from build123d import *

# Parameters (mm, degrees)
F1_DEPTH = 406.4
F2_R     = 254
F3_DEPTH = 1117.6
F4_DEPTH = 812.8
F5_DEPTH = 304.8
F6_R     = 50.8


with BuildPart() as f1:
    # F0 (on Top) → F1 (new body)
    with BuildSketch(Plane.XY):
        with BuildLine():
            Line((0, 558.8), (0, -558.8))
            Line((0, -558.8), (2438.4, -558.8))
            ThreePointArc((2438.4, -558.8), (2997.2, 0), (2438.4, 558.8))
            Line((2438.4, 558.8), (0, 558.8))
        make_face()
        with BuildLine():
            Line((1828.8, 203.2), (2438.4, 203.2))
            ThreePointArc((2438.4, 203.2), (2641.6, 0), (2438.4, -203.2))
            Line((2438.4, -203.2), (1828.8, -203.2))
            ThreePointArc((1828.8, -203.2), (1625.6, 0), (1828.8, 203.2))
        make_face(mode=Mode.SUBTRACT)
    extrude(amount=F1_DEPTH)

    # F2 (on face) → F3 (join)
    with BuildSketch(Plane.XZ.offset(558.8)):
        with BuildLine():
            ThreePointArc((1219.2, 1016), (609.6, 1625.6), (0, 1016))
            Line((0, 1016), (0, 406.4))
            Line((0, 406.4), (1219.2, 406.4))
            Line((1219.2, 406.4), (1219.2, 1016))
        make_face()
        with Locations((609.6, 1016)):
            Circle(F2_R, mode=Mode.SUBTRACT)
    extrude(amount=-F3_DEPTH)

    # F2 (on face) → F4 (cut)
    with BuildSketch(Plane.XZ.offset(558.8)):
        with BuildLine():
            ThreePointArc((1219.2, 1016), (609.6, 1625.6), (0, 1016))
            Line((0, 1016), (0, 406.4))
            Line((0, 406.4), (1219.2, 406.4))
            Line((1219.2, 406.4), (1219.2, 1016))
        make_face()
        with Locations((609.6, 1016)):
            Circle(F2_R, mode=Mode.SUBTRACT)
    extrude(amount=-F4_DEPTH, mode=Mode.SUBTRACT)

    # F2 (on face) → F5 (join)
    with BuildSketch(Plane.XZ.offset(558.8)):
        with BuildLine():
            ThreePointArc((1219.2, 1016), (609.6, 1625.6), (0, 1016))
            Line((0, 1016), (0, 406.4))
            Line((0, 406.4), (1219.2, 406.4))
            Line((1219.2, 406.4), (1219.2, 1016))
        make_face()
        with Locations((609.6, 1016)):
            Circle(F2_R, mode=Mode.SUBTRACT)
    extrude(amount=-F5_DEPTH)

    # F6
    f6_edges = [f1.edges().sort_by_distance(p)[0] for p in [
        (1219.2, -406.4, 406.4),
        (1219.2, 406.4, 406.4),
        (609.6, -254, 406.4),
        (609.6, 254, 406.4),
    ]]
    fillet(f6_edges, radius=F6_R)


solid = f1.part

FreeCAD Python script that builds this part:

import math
import FreeCAD as App
import Part
import Sketcher
Q = App.Units.Quantity


def edges_at(feature, points):
    """Names of the edges that pass closest to the given points."""
    edges = feature.Shape.Edges
    near = lambda p: min(range(len(edges)), key=lambda i: edges[i].distToShape(Part.Vertex(*p))[0])
    return sorted({f"Edge{near(p) + 1}" for p in points})

doc = App.newDocument("Part")
params = doc.addObject("Spreadsheet::Sheet", "Params")
for row, (alias, value) in enumerate([
    ("sketch1_radius", "22 in"),
    ("sketch1_radius2", "8 in"),
    ("sketch1_width", "96 in"),
    ("sketch1_width2", "24 in"),
    ("pad1_length", "16 in"),
    ("sketch2_diameter", "20 in"),
    ("sketch2_radius", "24 in"),
    ("sketch2_height", "24 in"),
    ("pad2_length", "44 in"),
    ("sketch3_diameter", "20 in"),
    ("sketch3_radius", "24 in"),
    ("sketch3_height", "24 in"),
    ("pocket1_length", "32 in"),
    ("sketch4_diameter", "20 in"),
    ("sketch4_radius", "24 in"),
    ("sketch4_height", "24 in"),
    ("pad3_length", "12 in"),
    ("fillet_radius", "2 in"),
], start=1):
    params.set(f"A{row}", alias)
    params.set(f"B{row}", "=" + value)
    params.setAlias(f"B{row}", alias)

body = doc.addObject("PartDesign::Body", "Body")

# Sketch on XY plane
sketch1 = doc.addObject("Sketcher::SketchObject", "Sketch")
body.addObject(sketch1)
sketch1.AttachmentSupport = (doc.XY_Plane, [""])
sketch1.MapMode = "FlatFace"
sketch1.addGeometry([
    Part.LineSegment(App.Vector(0, 558.8, 0), App.Vector(0, -558.8, 0)),  # 0
    Part.LineSegment(App.Vector(0, -558.8, 0), App.Vector(2438.4, -558.8, 0)),  # 1
    Part.ArcOfCircle(Part.Circle(App.Vector(2438.4, 0, 0), App.Vector(0, 0, 1), 558.8), math.radians(-90), math.radians(90)),  # 2
    Part.LineSegment(App.Vector(2438.4, 558.8, 0), App.Vector(0, 558.8, 0)),  # 3
    Part.ArcOfCircle(Part.Circle(App.Vector(1828.8, 0, 0), App.Vector(0, 0, 1), 203.2), math.radians(90), math.radians(270)),  # 4
    Part.LineSegment(App.Vector(1828.8, 203.2, 0), App.Vector(2438.4, 203.2, 0)),  # 5
    Part.ArcOfCircle(Part.Circle(App.Vector(2438.4, 0, 0), App.Vector(0, 0, 1), 203.2), math.radians(-90), math.radians(90)),  # 6
    Part.LineSegment(App.Vector(2438.4, -203.2, 0), App.Vector(1828.8, -203.2, 0)),  # 7
], False)
sketch1.addConstraint([
    Sketcher.Constraint("Coincident", 0, 2, 1, 1),
    Sketcher.Constraint("Tangent", 1, 2, 2, 1),
    Sketcher.Constraint("Tangent", 2, 2, 3, 1),
    Sketcher.Constraint("Coincident", 3, 2, 0, 1),
    Sketcher.Constraint("Tangent", 4, 1, 5, 1),
    Sketcher.Constraint("Tangent", 5, 2, 6, 2),
    Sketcher.Constraint("Tangent", 6, 1, 7, 1),
    Sketcher.Constraint("Tangent", 7, 2, 4, 2),
    Sketcher.Constraint("Vertical", 0),
    Sketcher.Constraint("Horizontal", 1),
    Sketcher.Constraint("Horizontal", 3),
    Sketcher.Constraint("Horizontal", 5),
    Sketcher.Constraint("Horizontal", 7),
    Sketcher.Constraint("Coincident", 6, 3, 2, 3),
    Sketcher.Constraint("Symmetric", 0, 2, 3, 2, -1, 1),
    Sketcher.Constraint("Radius", 2, Q("22 in")),
    Sketcher.Constraint("Radius", 4, Q("8 in")),
    Sketcher.Constraint("DistanceX", 1, 1, 1, 2, Q("96 in")),
    Sketcher.Constraint("DistanceX", 5, 1, 5, 2, Q("24 in")),
])
sketch1.setExpression("Constraints[15]", "Params.sketch1_radius")
sketch1.setExpression("Constraints[16]", "Params.sketch1_radius2")
sketch1.setExpression("Constraints[17]", "Params.sketch1_width")
sketch1.setExpression("Constraints[18]", "Params.sketch1_width2")
pad1 = doc.addObject("PartDesign::Pad", "Pad")
body.addObject(pad1)
pad1.Profile = sketch1
pad1.setExpression("Length", "Params.pad1_length")

# Sketch on XZ plane
sketch2 = doc.addObject("Sketcher::SketchObject", "Sketch001")
body.addObject(sketch2)
sketch2.AttachmentSupport = (doc.XZ_Plane, [""])
sketch2.MapMode = "FlatFace"
sketch2.AttachmentOffset = App.Placement(App.Vector(0, 0, 22 * 25.4), App.Rotation())
sketch2.addGeometry([
    Part.ArcOfCircle(Part.Circle(App.Vector(609.6, 1016, 0), App.Vector(0, 0, 1), 609.6), math.radians(0), math.radians(180)),  # 0
    Part.LineSegment(App.Vector(0, 1016, 0), App.Vector(0, 406.4, 0)),  # 1
    Part.LineSegment(App.Vector(0, 406.4, 0), App.Vector(1219.2, 406.4, 0)),  # 2
    Part.LineSegment(App.Vector(1219.2, 406.4, 0), App.Vector(1219.2, 1016, 0)),  # 3
    Part.Circle(App.Vector(609.6, 1016, 0), App.Vector(0, 0, 1), 254),  # 4
], False)
sketch2.addConstraint([
    Sketcher.Constraint("Tangent", 0, 2, 1, 1),
    Sketcher.Constraint("Coincident", 1, 2, 2, 1),
    Sketcher.Constraint("Coincident", 2, 2, 3, 1),
    Sketcher.Constraint("Tangent", 3, 2, 0, 1),
    Sketcher.Constraint("Vertical", 1),
    Sketcher.Constraint("Horizontal", 2),
    Sketcher.Constraint("Vertical", 3),
    Sketcher.Constraint("Coincident", 4, 3, 0, 3),
    Sketcher.Constraint("PointOnObject", 0, 2, -2),
    Sketcher.Constraint("Diameter", 4, Q("20 in")),
    Sketcher.Constraint("Radius", 0, Q("24 in")),
    Sketcher.Constraint("DistanceY", 1, 2, 1, 1, Q("24 in")),
    Sketcher.Constraint("DistanceY", -1, 1, 0, 3, Q("40 in")),
])
sketch2.setExpression("Constraints[9]", "Params.sketch2_diameter")
sketch2.setExpression("Constraints[10]", "Params.sketch2_radius")
sketch2.setExpression("Constraints[11]", "Params.sketch2_height")
pad2 = doc.addObject("PartDesign::Pad", "Pad001")
body.addObject(pad2)
pad2.Profile = sketch2
pad2.setExpression("Length", "Params.pad2_length")
pad2.Reversed = True

# Sketch on XZ plane
sketch3 = doc.addObject("Sketcher::SketchObject", "Sketch002")
body.addObject(sketch3)
sketch3.AttachmentSupport = (doc.XZ_Plane, [""])
sketch3.MapMode = "FlatFace"
sketch3.AttachmentOffset = App.Placement(App.Vector(0, 0, 22 * 25.4), App.Rotation())
sketch3.addGeometry([
    Part.ArcOfCircle(Part.Circle(App.Vector(609.6, 1016, 0), App.Vector(0, 0, 1), 609.6), math.radians(0), math.radians(180)),  # 0
    Part.LineSegment(App.Vector(0, 1016, 0), App.Vector(0, 406.4, 0)),  # 1
    Part.LineSegment(App.Vector(0, 406.4, 0), App.Vector(1219.2, 406.4, 0)),  # 2
    Part.LineSegment(App.Vector(1219.2, 406.4, 0), App.Vector(1219.2, 1016, 0)),  # 3
    Part.Circle(App.Vector(609.6, 1016, 0), App.Vector(0, 0, 1), 254),  # 4
], False)
sketch3.addConstraint([
    Sketcher.Constraint("Tangent", 0, 2, 1, 1),
    Sketcher.Constraint("Coincident", 1, 2, 2, 1),
    Sketcher.Constraint("Coincident", 2, 2, 3, 1),
    Sketcher.Constraint("Tangent", 3, 2, 0, 1),
    Sketcher.Constraint("Vertical", 1),
    Sketcher.Constraint("Horizontal", 2),
    Sketcher.Constraint("Vertical", 3),
    Sketcher.Constraint("Coincident", 4, 3, 0, 3),
    Sketcher.Constraint("PointOnObject", 0, 2, -2),
    Sketcher.Constraint("Diameter", 4, Q("20 in")),
    Sketcher.Constraint("Radius", 0, Q("24 in")),
    Sketcher.Constraint("DistanceY", 1, 2, 1, 1, Q("24 in")),
    Sketcher.Constraint("DistanceY", -1, 1, 0, 3, Q("40 in")),
])
sketch3.setExpression("Constraints[9]", "Params.sketch3_diameter")
sketch3.setExpression("Constraints[10]", "Params.sketch3_radius")
sketch3.setExpression("Constraints[11]", "Params.sketch3_height")
pocket1 = doc.addObject("PartDesign::Pocket", "Pocket")
body.addObject(pocket1)
pocket1.Profile = sketch3
pocket1.setExpression("Length", "Params.pocket1_length")

# Sketch on XZ plane
sketch4 = doc.addObject("Sketcher::SketchObject", "Sketch003")
body.addObject(sketch4)
sketch4.AttachmentSupport = (doc.XZ_Plane, [""])
sketch4.MapMode = "FlatFace"
sketch4.AttachmentOffset = App.Placement(App.Vector(0, 0, 22 * 25.4), App.Rotation())
sketch4.addGeometry([
    Part.ArcOfCircle(Part.Circle(App.Vector(609.6, 1016, 0), App.Vector(0, 0, 1), 609.6), math.radians(0), math.radians(180)),  # 0
    Part.LineSegment(App.Vector(0, 1016, 0), App.Vector(0, 406.4, 0)),  # 1
    Part.LineSegment(App.Vector(0, 406.4, 0), App.Vector(1219.2, 406.4, 0)),  # 2
    Part.LineSegment(App.Vector(1219.2, 406.4, 0), App.Vector(1219.2, 1016, 0)),  # 3
    Part.Circle(App.Vector(609.6, 1016, 0), App.Vector(0, 0, 1), 254),  # 4
], False)
sketch4.addConstraint([
    Sketcher.Constraint("Tangent", 0, 2, 1, 1),
    Sketcher.Constraint("Coincident", 1, 2, 2, 1),
    Sketcher.Constraint("Coincident", 2, 2, 3, 1),
    Sketcher.Constraint("Tangent", 3, 2, 0, 1),
    Sketcher.Constraint("Vertical", 1),
    Sketcher.Constraint("Horizontal", 2),
    Sketcher.Constraint("Vertical", 3),
    Sketcher.Constraint("Coincident", 4, 3, 0, 3),
    Sketcher.Constraint("PointOnObject", 0, 2, -2),
    Sketcher.Constraint("Diameter", 4, Q("20 in")),
    Sketcher.Constraint("Radius", 0, Q("24 in")),
    Sketcher.Constraint("DistanceY", 1, 2, 1, 1, Q("24 in")),
    Sketcher.Constraint("DistanceY", -1, 1, 0, 3, Q("40 in")),
])
sketch4.setExpression("Constraints[9]", "Params.sketch4_diameter")
sketch4.setExpression("Constraints[10]", "Params.sketch4_radius")
sketch4.setExpression("Constraints[11]", "Params.sketch4_height")
pad3 = doc.addObject("PartDesign::Pad", "Pad002")
body.addObject(pad3)
pad3.Profile = sketch4
pad3.setExpression("Length", "Params.pad3_length")
pad3.Reversed = True
doc.recompute()

fillet = doc.addObject("PartDesign::Fillet", "Fillet")
body.addObject(fillet)
fillet.Base = (pad3, edges_at(pad3, [
    (1219.2, -406.4, 406.4),
    (1219.2, 406.4, 406.4),
    (609.6, -254, 406.4),
    (609.6, 254, 406.4),
]))
fillet.setExpression("Radius", "Params.fillet_radius")

doc.recompute()
